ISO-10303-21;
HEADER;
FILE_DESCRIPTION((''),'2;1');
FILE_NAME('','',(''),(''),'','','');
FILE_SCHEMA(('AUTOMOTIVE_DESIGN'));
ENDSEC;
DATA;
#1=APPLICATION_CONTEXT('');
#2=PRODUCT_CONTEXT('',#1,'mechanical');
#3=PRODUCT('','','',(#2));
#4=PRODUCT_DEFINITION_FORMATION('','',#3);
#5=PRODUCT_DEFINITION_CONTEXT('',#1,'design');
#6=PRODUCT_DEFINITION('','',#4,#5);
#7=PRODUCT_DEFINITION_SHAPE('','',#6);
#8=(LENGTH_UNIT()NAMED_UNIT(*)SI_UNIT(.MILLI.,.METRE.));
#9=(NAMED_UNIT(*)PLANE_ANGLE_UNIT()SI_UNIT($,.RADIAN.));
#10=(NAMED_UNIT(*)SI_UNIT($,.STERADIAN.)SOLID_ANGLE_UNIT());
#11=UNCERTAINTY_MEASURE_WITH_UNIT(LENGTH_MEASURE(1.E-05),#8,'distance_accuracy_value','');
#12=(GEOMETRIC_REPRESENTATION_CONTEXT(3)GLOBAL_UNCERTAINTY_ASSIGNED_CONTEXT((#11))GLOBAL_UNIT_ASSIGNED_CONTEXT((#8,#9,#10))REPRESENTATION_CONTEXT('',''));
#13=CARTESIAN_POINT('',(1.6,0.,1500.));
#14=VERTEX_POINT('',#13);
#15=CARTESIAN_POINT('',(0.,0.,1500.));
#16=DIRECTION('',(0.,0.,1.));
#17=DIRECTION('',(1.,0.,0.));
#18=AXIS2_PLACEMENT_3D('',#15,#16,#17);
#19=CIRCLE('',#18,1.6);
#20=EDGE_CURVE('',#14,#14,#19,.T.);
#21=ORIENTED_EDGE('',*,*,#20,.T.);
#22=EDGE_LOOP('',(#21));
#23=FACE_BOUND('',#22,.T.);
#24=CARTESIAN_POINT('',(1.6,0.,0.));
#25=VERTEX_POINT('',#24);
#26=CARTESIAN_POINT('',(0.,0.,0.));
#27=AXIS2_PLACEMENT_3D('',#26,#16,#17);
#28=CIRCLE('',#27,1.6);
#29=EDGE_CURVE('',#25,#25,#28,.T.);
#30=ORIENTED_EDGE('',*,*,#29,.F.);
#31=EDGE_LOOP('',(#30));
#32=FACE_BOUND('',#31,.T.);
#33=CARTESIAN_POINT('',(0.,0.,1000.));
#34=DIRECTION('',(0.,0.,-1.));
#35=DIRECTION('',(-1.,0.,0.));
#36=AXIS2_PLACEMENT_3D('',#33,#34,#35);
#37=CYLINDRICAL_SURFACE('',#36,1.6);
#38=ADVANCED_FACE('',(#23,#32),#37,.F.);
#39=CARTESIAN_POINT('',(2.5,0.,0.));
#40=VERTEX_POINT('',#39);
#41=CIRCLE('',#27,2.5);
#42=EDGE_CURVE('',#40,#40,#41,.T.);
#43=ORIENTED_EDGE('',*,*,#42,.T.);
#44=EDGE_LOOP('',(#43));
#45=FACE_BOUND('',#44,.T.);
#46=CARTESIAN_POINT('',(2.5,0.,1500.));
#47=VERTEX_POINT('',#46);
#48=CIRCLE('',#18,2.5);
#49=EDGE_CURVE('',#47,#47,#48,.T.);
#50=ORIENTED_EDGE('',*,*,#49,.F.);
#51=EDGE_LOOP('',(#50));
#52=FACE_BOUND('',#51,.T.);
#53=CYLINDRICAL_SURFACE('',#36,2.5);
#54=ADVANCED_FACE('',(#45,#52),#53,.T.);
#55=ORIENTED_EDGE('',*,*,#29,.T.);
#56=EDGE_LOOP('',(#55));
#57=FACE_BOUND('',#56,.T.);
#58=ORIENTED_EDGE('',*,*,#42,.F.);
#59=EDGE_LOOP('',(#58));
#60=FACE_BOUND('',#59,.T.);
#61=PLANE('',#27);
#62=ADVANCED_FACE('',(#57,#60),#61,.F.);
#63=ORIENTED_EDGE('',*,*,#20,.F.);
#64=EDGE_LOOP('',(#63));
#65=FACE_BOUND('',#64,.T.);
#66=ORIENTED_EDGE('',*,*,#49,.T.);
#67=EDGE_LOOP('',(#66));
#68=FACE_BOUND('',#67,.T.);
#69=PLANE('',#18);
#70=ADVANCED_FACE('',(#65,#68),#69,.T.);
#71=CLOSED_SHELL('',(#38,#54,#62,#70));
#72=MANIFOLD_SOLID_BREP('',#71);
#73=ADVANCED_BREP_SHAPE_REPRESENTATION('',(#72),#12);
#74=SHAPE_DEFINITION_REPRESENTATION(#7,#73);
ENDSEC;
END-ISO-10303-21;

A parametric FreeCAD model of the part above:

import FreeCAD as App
import Part
import Sketcher
Q = App.Units.Quantity

doc = App.newDocument("Part")
body = doc.addObject("PartDesign::Body", "Body")

# Sketch on XY plane
sketch1 = body.newObject("Sketcher::SketchObject", "Sketch")
sketch1.AttachmentSupport = (doc.getObject("XY_Plane"), [""])
sketch1.MapMode = "FlatFace"
sketch1.addGeometry(Part.Circle(App.Vector(0, 0, 0), App.Vector(0, 0, 1), 2.5), False)
sketch1.addGeometry(Part.Circle(App.Vector(0, 0, 0), App.Vector(0, 0, 1), 1.6), False)
sketch1.addConstraint(Sketcher.Constraint("Coincident", 0, 3, -1, 1))
sketch1.addConstraint(Sketcher.Constraint("Coincident", 1, 3, -1, 1))
sketch1.addConstraint(Sketcher.Constraint("Diameter", 0, Q("5 mm")))
sketch1.addConstraint(Sketcher.Constraint("Diameter", 1, Q("3.2 mm")))
pad1 = body.newObject("PartDesign::Pad", "Pad")
pad1.Profile = sketch1
pad1.Length = 1000

# Sketch on XY plane
sketch2 = body.newObject("Sketcher::SketchObject", "Sketch001")
sketch2.AttachmentSupport = (doc.getObject("XY_Plane"), [""])
sketch2.MapMode = "FlatFace"
sketch2.AttachmentOffset = App.Placement(App.Vector(0, 0, 1000), App.Rotation())
sketch2.addGeometry(Part.Circle(App.Vector(0, 0, 0), App.Vector(0, 0, 1), 2.5), False)
sketch2.addGeometry(Part.Circle(App.Vector(0, 0, 0), App.Vector(0, 0, 1), 1.6), False)
sketch2.addConstraint(Sketcher.Constraint("Coincident", 0, 3, -1, 1))
sketch2.addConstraint(Sketcher.Constraint("Coincident", 1, 3, -1, 1))
sketch2.addConstraint(Sketcher.Constraint("Diameter", 0, Q("5 mm")))
sketch2.addConstraint(Sketcher.Constraint("Diameter", 1, Q("3.2 mm")))
pad2 = body.newObject("PartDesign::Pad", "Pad001")
pad2.Profile = sketch2
pad2.Length = 500

doc.recompute()
